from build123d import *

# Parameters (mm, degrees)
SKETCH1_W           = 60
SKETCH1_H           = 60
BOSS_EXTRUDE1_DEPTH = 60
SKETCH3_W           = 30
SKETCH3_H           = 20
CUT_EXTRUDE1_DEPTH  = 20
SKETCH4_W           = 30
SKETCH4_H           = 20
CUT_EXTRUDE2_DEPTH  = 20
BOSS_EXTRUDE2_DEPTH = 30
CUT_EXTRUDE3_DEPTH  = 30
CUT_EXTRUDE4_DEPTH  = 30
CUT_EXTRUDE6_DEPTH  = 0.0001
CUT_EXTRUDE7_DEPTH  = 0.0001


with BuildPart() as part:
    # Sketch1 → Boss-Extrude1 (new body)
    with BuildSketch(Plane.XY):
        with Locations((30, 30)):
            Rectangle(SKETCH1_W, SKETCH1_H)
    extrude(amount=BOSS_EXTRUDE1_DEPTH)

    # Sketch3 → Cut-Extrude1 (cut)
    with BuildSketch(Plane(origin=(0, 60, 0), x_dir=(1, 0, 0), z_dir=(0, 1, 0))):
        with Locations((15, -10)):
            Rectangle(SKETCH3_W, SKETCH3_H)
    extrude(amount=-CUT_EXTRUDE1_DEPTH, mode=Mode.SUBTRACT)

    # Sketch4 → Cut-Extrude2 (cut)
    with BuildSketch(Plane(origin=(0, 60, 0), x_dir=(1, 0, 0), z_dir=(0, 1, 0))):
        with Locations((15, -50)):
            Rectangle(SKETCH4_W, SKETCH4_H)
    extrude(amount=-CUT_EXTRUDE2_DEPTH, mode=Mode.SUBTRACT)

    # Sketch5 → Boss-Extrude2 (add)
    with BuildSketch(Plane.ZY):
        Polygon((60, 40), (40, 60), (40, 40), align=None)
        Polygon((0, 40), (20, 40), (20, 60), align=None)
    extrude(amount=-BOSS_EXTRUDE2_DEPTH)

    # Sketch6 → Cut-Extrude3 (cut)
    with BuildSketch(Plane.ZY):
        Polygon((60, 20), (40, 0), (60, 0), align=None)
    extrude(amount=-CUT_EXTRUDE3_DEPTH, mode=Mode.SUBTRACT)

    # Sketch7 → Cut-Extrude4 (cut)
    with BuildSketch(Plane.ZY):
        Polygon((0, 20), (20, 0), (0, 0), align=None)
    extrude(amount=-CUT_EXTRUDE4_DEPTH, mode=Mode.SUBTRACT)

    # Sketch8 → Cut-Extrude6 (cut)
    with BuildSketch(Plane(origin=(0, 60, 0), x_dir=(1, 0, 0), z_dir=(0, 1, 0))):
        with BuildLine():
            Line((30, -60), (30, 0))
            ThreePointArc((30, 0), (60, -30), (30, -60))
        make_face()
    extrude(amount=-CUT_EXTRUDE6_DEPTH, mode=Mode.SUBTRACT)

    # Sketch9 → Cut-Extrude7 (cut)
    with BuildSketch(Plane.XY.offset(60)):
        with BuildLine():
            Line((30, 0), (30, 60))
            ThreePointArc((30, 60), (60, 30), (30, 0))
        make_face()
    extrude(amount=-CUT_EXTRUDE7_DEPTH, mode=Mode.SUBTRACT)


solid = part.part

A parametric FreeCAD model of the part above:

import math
import FreeCAD as App
import Part
import Sketcher
from FreeCAD import Vector
Q = App.Units.Quantity

doc = App.newDocument("Part")
body = doc.addObject("PartDesign::Body", "Body")

# Sketch on XY plane
sketch1 = body.newObject("Sketcher::SketchObject", "Sketch")
sketch1.AttachmentSupport = (doc.getObject("XY_Plane"), [""])
sketch1.MapMode = "FlatFace"
sketch1.addGeometry([
    Part.LineSegment(Vector(0, 60, 0), Vector(0, 0, 0)),
    Part.LineSegment(Vector(0, 0, 0), Vector(60, 0, 0)),
    Part.LineSegment(Vector(60, 0, 0), Vector(60, 60, 0)),
    Part.LineSegment(Vector(60, 60, 0), Vector(0, 60, 0)),
], False)
sketch1.addConstraint([
    Sketcher.Constraint("Coincident", 0, 2, 1, 1),
    Sketcher.Constraint("Coincident", 1, 2, 2, 1),
    Sketcher.Constraint("Coincident", 2, 2, 3, 1),
    Sketcher.Constraint("Coincident", 3, 2, 0, 1),
    Sketcher.Constraint("Vertical", 0),
    Sketcher.Constraint("Horizontal", 1),
    Sketcher.Constraint("Vertical", 2),
    Sketcher.Constraint("Horizontal", 3),
    Sketcher.Constraint("Coincident", 0, 2, -1, 1),
    Sketcher.Constraint("Equal", 3, 0),
    Sketcher.Constraint("DistanceX", 1, 1, 1, 2, Q("60 mm")),
])
pad1 = body.newObject("PartDesign::Pad", "Pad")
pad1.Profile = sketch1
pad1.Length = 60

# Sketch on XZ plane
sketch2 = body.newObject("Sketcher::SketchObject", "Sketch001")
sketch2.AttachmentSupport = (doc.getObject("XZ_Plane"), [""])
sketch2.MapMode = "FlatFace"
sketch2.AttachmentOffset = App.Placement(Vector(0, 0, -60), App.Rotation())
sketch2.addGeometry([
    Part.LineSegment(Vector(0, 0, 0), Vector(0, 20, 0)),
    Part.LineSegment(Vector(0, 20, 0), Vector(30, 20, 0)),
    Part.LineSegment(Vector(30, 20, 0), Vector(30, 0, 0)),
    Part.LineSegment(Vector(30, 0, 0), Vector(0, 0, 0)),
], False)
sketch2.addConstraint([
    Sketcher.Constraint("Coincident", 0, 2, 1, 1),
    Sketcher.Constraint("Coincident", 1, 2, 2, 1),
    Sketcher.Constraint("Coincident", 2, 2, 3, 1),
    Sketcher.Constraint("Coincident", 3, 2, 0, 1),
    Sketcher.Constraint("Vertical", 0),
    Sketcher.Constraint("Horizontal", 1),
    Sketcher.Constraint("Vertical", 2),
    Sketcher.Constraint("Horizontal", 3),
    Sketcher.Constraint("Coincident", 3, 2, -1, 1),
    Sketcher.Constraint("DistanceX", 1, 1, 1, 2, Q("30 mm")),
    Sketcher.Constraint("DistanceY", 0, 1, 0, 2, Q("20 mm")),
])
pocket1 = body.newObject("PartDesign::Pocket", "Pocket")
pocket1.Profile = sketch2
pocket1.Length = 20
pocket1.Reversed = True

# Sketch on XZ plane
sketch3 = body.newObject("Sketcher::SketchObject", "Sketch002")
sketch3.AttachmentSupport = (doc.getObject("XZ_Plane"), [""])
sketch3.MapMode = "FlatFace"
sketch3.AttachmentOffset = App.Placement(Vector(0, 0, -60), App.Rotation())
sketch3.addGeometry([
    Part.LineSegment(Vector(0, 40, 0), Vector(0, 60, 0)),
    Part.LineSegment(Vector(0, 60, 0), Vector(30, 60, 0)),
    Part.LineSegment(Vector(30, 60, 0), Vector(30, 40, 0)),
    Part.LineSegment(Vector(30, 40, 0), Vector(0, 40, 0)),
], False)
sketch3.addConstraint([
    Sketcher.Constraint("Coincident", 0, 2, 1, 1),
    Sketcher.Constraint("Coincident", 1, 2, 2, 1),
    Sketcher.Constraint("Coincident", 2, 2, 3, 1),
    Sketcher.Constraint("Coincident", 3, 2, 0, 1),
    Sketcher.Constraint("Vertical", 0),
    Sketcher.Constraint("Horizontal", 1),
    Sketcher.Constraint("Vertical", 2),
    Sketcher.Constraint("Horizontal", 3),
    Sketcher.Constraint("PointOnObject", 0, 2, -2),
    Sketcher.Constraint("DistanceX", 1, 1, 1, 2, Q("30 mm")),
    Sketcher.Constraint("DistanceY", 0, 1, 0, 2, Q("20 mm")),
    Sketcher.Constraint("DistanceY", -1, 1, 0, 2, Q("60 mm")),
])
pocket2 = body.newObject("PartDesign::Pocket", "Pocket001")
pocket2.Profile = sketch3
pocket2.Length = 20
pocket2.Reversed = True

# Sketch on YZ plane
sketch4 = body.newObject("Sketcher::SketchObject", "Sketch003")
sketch4.AttachmentSupport = (doc.getObject("YZ_Plane"), [""])
sketch4.MapMode = "FlatFace"
sketch4.addGeometry([
    Part.LineSegment(Vector(40, 60, 0), Vector(60, 40, 0)),  # 0
    Part.LineSegment(Vector(60, 40, 0), Vector(40, 40, 0)),  # 1
    Part.LineSegment(Vector(40, 40, 0), Vector(40, 60, 0)),  # 2
    Part.LineSegment(Vector(40, 0, 0), Vector(40, 20, 0)),  # 3
    Part.LineSegment(Vector(40, 20, 0), Vector(60, 20, 0)),  # 4
    Part.LineSegment(Vector(60, 20, 0), Vector(40, 0, 0)),  # 5
], False)
sketch4.addConstraint([
    Sketcher.Constraint("Coincident", 0, 2, 1, 1),
    Sketcher.Constraint("Coincident", 1, 2, 2, 1),
    Sketcher.Constraint("Coincident", 2, 2, 0, 1),
    Sketcher.Constraint("Coincident", 3, 2, 4, 1),
    Sketcher.Constraint("Coincident", 4, 2, 5, 1),
    Sketcher.Constraint("Coincident", 5, 2, 3, 1),
    Sketcher.Constraint("Horizontal", 1),
    Sketcher.Constraint("Vertical", 2),
    Sketcher.Constraint("Vertical", 3),
    Sketcher.Constraint("Horizontal", 4),
    Sketcher.Constraint("PointOnObject", 5, 2, -1),
    Sketcher.Constraint("Perpendicular", 0, 5),
    Sketcher.Constraint("Vertical", 2, 2, 3, 2),
    Sketcher.Constraint("Vertical", 0, 2, 4, 2),
    Sketcher.Constraint("Equal", 4, 2),
    Sketcher.Constraint("DistanceX", 1, 2, 1, 1, Q("20 mm")),
    Sketcher.Constraint("DistanceX", -1, 1, 0, 2, Q("60 mm")),
    Sketcher.Constraint("DistanceY", -1, 1, 0, 2, Q("40 mm")),
])
pad2 = body.newObject("PartDesign::Pad", "Pad001")
pad2.Profile = sketch4
pad2.Length = 30

# Sketch on YZ plane
sketch5 = body.newObject("Sketcher::SketchObject", "Sketch004")
sketch5.AttachmentSupport = (doc.getObject("YZ_Plane"), [""])
sketch5.MapMode = "FlatFace"
sketch5.addGeometry([
    Part.LineSegment(Vector(20, 60, 0), Vector(0, 40, 0)),
    Part.LineSegment(Vector(0, 40, 0), Vector(0, 60, 0)),
    Part.LineSegment(Vector(0, 60, 0), Vector(20, 60, 0)),
], False)
sketch5.addConstraint([
    Sketcher.Constraint("Coincident", 0, 2, 1, 1),
    Sketcher.Constraint("Coincident", 1, 2, 2, 1),
    Sketcher.Constraint("Coincident", 2, 2, 0, 1),
    Sketcher.Constraint("Vertical", 1),
    Sketcher.Constraint("Horizontal", 2),
    Sketcher.Constraint("PointOnObject", 0, 2, -2),
    Sketcher.Constraint("Equal", 2, 1),
    Sketcher.Constraint("DistanceX", 2, 1, 2, 2, Q("20 mm")),
    Sketcher.Constraint("DistanceY", -1, 1, 0, 2, Q("40 mm")),
])
pocket3 = body.newObject("PartDesign::Pocket", "Pocket002")
pocket3.Profile = sketch5
pocket3.Length = 30
pocket3.Reversed = True

# Sketch on YZ plane
sketch6 = body.newObject("Sketcher::SketchObject", "Sketch005")
sketch6.AttachmentSupport = (doc.getObject("YZ_Plane"), [""])
sketch6.MapMode = "FlatFace"
sketch6.addGeometry([
    Part.LineSegment(Vector(0, 20, 0), Vector(20, 0, 0)),
    Part.LineSegment(Vector(20, 0, 0), Vector(0, 0, 0)),
    Part.LineSegment(Vector(0, 0, 0), Vector(0, 20, 0)),
], False)
sketch6.addConstraint([
    Sketcher.Constraint("Coincident", 0, 2, 1, 1),
    Sketcher.Constraint("Coincident", 1, 2, 2, 1),
    Sketcher.Constraint("Coincident", 2, 2, 0, 1),
    Sketcher.Constraint("Horizontal", 1),
    Sketcher.Constraint("Vertical", 2),
    Sketcher.Constraint("Coincident", 1, 2, -1, 1),
    Sketcher.Constraint("Equal", 1, 2),
    Sketcher.Constraint("DistanceX", 1, 2, 1, 1, Q("20 mm")),
])
pocket4 = body.newObject("PartDesign::Pocket", "Pocket003")
pocket4.Profile = sketch6
pocket4.Length = 30
pocket4.Reversed = True

# Sketch on XZ plane
sketch7 = body.newObject("Sketcher::SketchObject", "Sketch006")
sketch7.AttachmentSupport = (doc.getObject("XZ_Plane"), [""])
sketch7.MapMode = "FlatFace"
sketch7.AttachmentOffset = App.Placement(Vector(0, 0, -60), App.Rotation())
sketch7.addGeometry([
    Part.LineSegment(Vector(30, 0, 0), Vector(30, 60, 0)),
    Part.ArcOfCircle(Part.Circle(Vector(30, 30, 0), Vector(0, 0, 1), 30), math.radians(-90), math.radians(90)),
], False)
sketch7.addConstraint([
    Sketcher.Constraint("Coincident", 0, 1, 1, 1),
    Sketcher.Constraint("Coincident", 1, 2, 0, 2),
    Sketcher.Constraint("Vertical", 0),
    Sketcher.Constraint("PointOnObject", 0, 1, -1),
    Sketcher.Constraint("Vertical", 1, 3, 0, 1),
    Sketcher.Constraint("Radius", 1, Q("30 mm")),
    Sketcher.Constraint("DistanceX", -1, 1, 1, 3, Q("30 mm")),
])
pocket5 = body.newObject("PartDesign::Pocket", "Pocket004")
pocket5.Profile = sketch7
pocket5.Length = 0.0001
pocket5.Reversed = True

# Sketch on XY plane
sketch8 = body.newObject("Sketcher::SketchObject", "Sketch007")
sketch8.AttachmentSupport = (doc.getObject("XY_Plane"), [""])
sketch8.MapMode = "FlatFace"
sketch8.AttachmentOffset = App.Placement(Vector(0, 0, 60), App.Rotation())
sketch8.addGeometry([
    Part.LineSegment(Vector(30, 60, 0), Vector(30, 0, 0)),
    Part.ArcOfCircle(Part.Circle(Vector(30, 30, 0), Vector(0, 0, 1), 30), math.radians(-90), math.radians(90)),
], False)
sketch8.addConstraint([
    Sketcher.Constraint("Coincident", 0, 1, 1, 2),
    Sketcher.Constraint("Coincident", 1, 1, 0, 2),
    Sketcher.Constraint("Vertical", 0),
    Sketcher.Constraint("PointOnObject", 1, 1, -1),
    Sketcher.Constraint("Vertical", 1, 3, 0, 1),
    Sketcher.Constraint("Radius", 1, Q("30 mm")),
    Sketcher.Constraint("DistanceX", -1, 1, 1, 3, Q("30 mm")),
])
pocket6 = body.newObject("PartDesign::Pocket", "Pocket005")
pocket6.Profile = sketch8
pocket6.Length = 0.0001

doc.recompute()
